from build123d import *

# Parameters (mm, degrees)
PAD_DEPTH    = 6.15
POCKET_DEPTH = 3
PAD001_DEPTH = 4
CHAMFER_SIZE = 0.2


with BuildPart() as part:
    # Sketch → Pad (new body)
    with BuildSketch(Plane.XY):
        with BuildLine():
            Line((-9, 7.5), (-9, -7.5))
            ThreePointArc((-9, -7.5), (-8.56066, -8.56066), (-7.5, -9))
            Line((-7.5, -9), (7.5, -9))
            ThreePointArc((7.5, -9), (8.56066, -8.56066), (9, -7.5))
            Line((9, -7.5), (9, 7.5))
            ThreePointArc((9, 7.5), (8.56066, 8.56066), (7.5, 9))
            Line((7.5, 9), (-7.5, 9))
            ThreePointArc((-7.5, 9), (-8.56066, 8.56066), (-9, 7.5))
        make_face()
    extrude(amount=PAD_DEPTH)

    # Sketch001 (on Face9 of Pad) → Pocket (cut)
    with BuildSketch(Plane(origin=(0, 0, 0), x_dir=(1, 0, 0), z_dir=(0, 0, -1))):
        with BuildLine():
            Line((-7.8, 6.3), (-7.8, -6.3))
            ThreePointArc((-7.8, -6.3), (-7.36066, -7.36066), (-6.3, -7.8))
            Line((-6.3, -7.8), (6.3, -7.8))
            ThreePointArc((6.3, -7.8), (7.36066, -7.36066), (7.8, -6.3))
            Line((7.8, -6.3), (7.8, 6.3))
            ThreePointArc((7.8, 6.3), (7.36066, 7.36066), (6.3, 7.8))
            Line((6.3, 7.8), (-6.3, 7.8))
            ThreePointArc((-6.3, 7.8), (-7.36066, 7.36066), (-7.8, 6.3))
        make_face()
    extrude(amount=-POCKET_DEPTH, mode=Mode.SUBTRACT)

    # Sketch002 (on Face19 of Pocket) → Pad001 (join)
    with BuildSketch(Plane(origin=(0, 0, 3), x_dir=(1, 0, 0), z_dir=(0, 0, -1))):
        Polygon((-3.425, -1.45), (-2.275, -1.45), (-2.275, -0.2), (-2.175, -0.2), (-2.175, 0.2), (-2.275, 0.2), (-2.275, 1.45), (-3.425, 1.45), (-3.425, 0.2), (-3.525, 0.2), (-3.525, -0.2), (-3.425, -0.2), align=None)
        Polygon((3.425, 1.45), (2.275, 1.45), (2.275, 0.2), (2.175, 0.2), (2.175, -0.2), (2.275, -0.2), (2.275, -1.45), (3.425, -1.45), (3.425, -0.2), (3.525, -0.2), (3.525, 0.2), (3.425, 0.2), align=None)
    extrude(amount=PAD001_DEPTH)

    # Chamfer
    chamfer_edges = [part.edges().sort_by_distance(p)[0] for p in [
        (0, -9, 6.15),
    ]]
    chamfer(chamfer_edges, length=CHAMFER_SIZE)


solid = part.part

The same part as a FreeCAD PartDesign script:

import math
import FreeCAD as App
import Part
import Sketcher
from FreeCAD import Vector
Q = App.Units.Quantity


def edges_at(feature, points):
    """Names of the edges that pass closest to the given points."""
    edges = feature.Shape.Edges
    near = lambda p: min(range(len(edges)), key=lambda i: edges[i].distToShape(Part.Vertex(*p))[0])
    return sorted({f"Edge{near(p) + 1}" for p in points})


def add_polygon(sketch, points):
    """Adds a closed chain of lines whose ends are joined by coincident constraints."""
    first, n = sketch.GeometryCount, len(points)
    for a, b in zip(points, points[1:] + points[:1]):
        sketch.addGeometry(Part.LineSegment(App.Vector(*a, 0), App.Vector(*b, 0)), False)
    for i in range(n):
        sketch.addConstraint(Sketcher.Constraint("Coincident", first + i, 2, first + (i + 1) % n, 1))

doc = App.newDocument("Part")
body = doc.addObject("PartDesign::Body", "Body")

sketch1 = body.newObject("Sketcher::SketchObject", "Sketch")
sketch1.AttachmentSupport = (doc.getObject("XY_Plane"), [""])
sketch1.MapMode = "FlatFace"
sketch1.addGeometry([
    Part.LineSegment(Vector(-9, 7.5, 0), Vector(-9, -7.5, 0)),
    Part.ArcOfCircle(Part.Circle(Vector(-7.5, -7.5, 0), Vector(0, 0, 1), 1.5), math.radians(-180), math.radians(-90)),
    Part.LineSegment(Vector(-7.5, -9, 0), Vector(7.5, -9, 0)),
    Part.ArcOfCircle(Part.Circle(Vector(7.5, -7.5, 0), Vector(0, 0, 1), 1.5), math.radians(-90), math.radians(0)),
    Part.LineSegment(Vector(9, -7.5, 0), Vector(9, 7.5, 0)),
    Part.ArcOfCircle(Part.Circle(Vector(7.5, 7.5, 0), Vector(0, 0, 1), 1.5), math.radians(0), math.radians(90)),
    Part.LineSegment(Vector(7.5, 9, 0), Vector(-7.5, 9, 0)),
    Part.ArcOfCircle(Part.Circle(Vector(-7.5, 7.5, 0), Vector(0, 0, 1), 1.5), math.radians(90), math.radians(180)),
], False)
sketch1.addConstraint([
    Sketcher.Constraint("Tangent", 0, 2, 1, 1),
    Sketcher.Constraint("Tangent", 1, 2, 2, 1),
    Sketcher.Constraint("Tangent", 2, 2, 3, 1),
    Sketcher.Constraint("Tangent", 3, 2, 4, 1),
    Sketcher.Constraint("Tangent", 4, 2, 5, 1),
    Sketcher.Constraint("Tangent", 5, 2, 6, 1),
    Sketcher.Constraint("Tangent", 6, 2, 7, 1),
    Sketcher.Constraint("Tangent", 7, 2, 0, 1),
    Sketcher.Constraint("Vertical", 0),
    Sketcher.Constraint("Horizontal", 2),
    Sketcher.Constraint("Vertical", 4),
    Sketcher.Constraint("Horizontal", 6),
    Sketcher.Constraint("Equal", 1, 3),
    Sketcher.Constraint("Equal", 3, 5),
    Sketcher.Constraint("Equal", 5, 7),
    Sketcher.Constraint("Symmetric", 1, 3, 5, 3, -1, 1),
    Sketcher.Constraint("Equal", 6, 0),
    Sketcher.Constraint("Radius", 1, Q("1.500001 mm")),
    Sketcher.Constraint("DistanceX", 2, 1, 2, 2, Q("15 mm")),
])
pad1 = body.newObject("PartDesign::Pad", "Pad")
pad1.Profile = sketch1
pad1.Length = 6.15

sketch2 = body.newObject("Sketcher::SketchObject", "Sketch001")
sketch2.AttachmentSupport = (doc.getObject("XY_Plane"), [""])
sketch2.MapMode = "FlatFace"
sketch2.addGeometry([
    Part.LineSegment(Vector(-7.8, -6.3, 0), Vector(-7.8, 6.3, 0)),
    Part.ArcOfCircle(Part.Circle(Vector(-6.3, 6.3, 0), Vector(0, 0, 1), 1.5), math.radians(90), math.radians(180)),
    Part.LineSegment(Vector(-6.3, 7.8, 0), Vector(6.3, 7.8, 0)),
    Part.ArcOfCircle(Part.Circle(Vector(6.3, 6.3, 0), Vector(0, 0, 1), 1.5), math.radians(0), math.radians(90)),
    Part.LineSegment(Vector(7.8, 6.3, 0), Vector(7.8, -6.3, 0)),
    Part.ArcOfCircle(Part.Circle(Vector(6.3, -6.3, 0), Vector(0, 0, 1), 1.5), math.radians(-90), math.radians(0)),
    Part.LineSegment(Vector(6.3, -7.8, 0), Vector(-6.3, -7.8, 0)),
    Part.ArcOfCircle(Part.Circle(Vector(-6.3, -6.3, 0), Vector(0, 0, 1), 1.5), math.radians(-180), math.radians(-90)),
], False)
sketch2.addConstraint([
    Sketcher.Constraint("Tangent", 0, 2, 1, 2),
    Sketcher.Constraint("Tangent", 1, 1, 2, 1),
    Sketcher.Constraint("Tangent", 2, 2, 3, 2),
    Sketcher.Constraint("Tangent", 3, 1, 4, 1),
    Sketcher.Constraint("Tangent", 4, 2, 5, 2),
    Sketcher.Constraint("Tangent", 5, 1, 6, 1),
    Sketcher.Constraint("Tangent", 6, 2, 7, 2),
    Sketcher.Constraint("Tangent", 7, 1, 0, 1),
    Sketcher.Constraint("Vertical", 0),
    Sketcher.Constraint("Horizontal", 2),
    Sketcher.Constraint("Vertical", 4),
    Sketcher.Constraint("Horizontal", 6),
    Sketcher.Constraint("Equal", 1, 3),
    Sketcher.Constraint("Equal", 3, 5),
    Sketcher.Constraint("Equal", 5, 7),
    Sketcher.Constraint("Symmetric", 1, 3, 5, 3, -1, 1),
    Sketcher.Constraint("Equal", 6, 0),
    Sketcher.Constraint("Radius", 1, Q("1.500001 mm")),
    Sketcher.Constraint("DistanceX", 2, 1, 2, 2, Q("12.6 mm")),
])
pocket1 = body.newObject("PartDesign::Pocket", "Pocket")
pocket1.Profile = sketch2
pocket1.Length = 3
pocket1.Reversed = True

sketch3 = body.newObject("Sketcher::SketchObject", "Sketch002")
sketch3.AttachmentSupport = (doc.getObject("XY_Plane"), [""])
sketch3.MapMode = "FlatFace"
sketch3.AttachmentOffset = App.Placement(Vector(0, 0, 3), App.Rotation())
add_polygon(sketch3, [(-3.42, 1.45), (-2.27, 1.45), (-2.27, 0.2), (-2.17, 0.2), (-2.17, -0.2), (-2.27, -0.2), (-2.27, -1.45), (-3.42, -1.45), (-3.42, -0.2), (-3.52, -0.2), (-3.52, 0.2), (-3.42, 0.2)])
add_polygon(sketch3, [(3.42, -1.45), (2.27, -1.45), (2.27, -0.2), (2.17, -0.2), (2.17, 0.2), (2.27, 0.2), (2.27, 1.45), (3.42, 1.45), (3.42, 0.2), (3.52, 0.2), (3.52, -0.2), (3.42, -0.2)])
sketch3.addConstraint([
    Sketcher.Constraint("Horizontal", 0),
    Sketcher.Constraint("Vertical", 1),
    Sketcher.Constraint("Horizontal", 2),
    Sketcher.Constraint("Vertical", 3),
    Sketcher.Constraint("Horizontal", 4),
    Sketcher.Constraint("Vertical", 5),
    Sketcher.Constraint("Horizontal", 6),
    Sketcher.Constraint("Vertical", 7),
    Sketcher.Constraint("Horizontal", 8),
    Sketcher.Constraint("Vertical", 9),
    Sketcher.Constraint("Horizontal", 10),
    Sketcher.Constraint("Vertical", 11),
    Sketcher.Constraint("Horizontal", 12),
    Sketcher.Constraint("Vertical", 13),
    Sketcher.Constraint("Horizontal", 14),
    Sketcher.Constraint("Vertical", 15),
    Sketcher.Constraint("Horizontal", 16),
    Sketcher.Constraint("Vertical", 17),
    Sketcher.Constraint("Horizontal", 18),
    Sketcher.Constraint("Vertical", 19),
    Sketcher.Constraint("Horizontal", 20),
    Sketcher.Constraint("Vertical", 21),
    Sketcher.Constraint("Horizontal", 22),
    Sketcher.Constraint("Vertical", 23),
    Sketcher.Constraint("Symmetric", 0, 2, 12, 2, -1, 1),
    Sketcher.Constraint("Symmetric", 2, 2, 14, 2, -1, 1),
    Sketcher.Constraint("Symmetric", 4, 2, 16, 2, -1, 1),
    Sketcher.Constraint("Symmetric", 6, 2, 18, 2, -1, 1),
    Sketcher.Constraint("Symmetric", 8, 2, 20, 2, -1, 1),
    Sketcher.Constraint("Symmetric", 10, 2, 22, 2, -1, 1),
    Sketcher.Constraint("Symmetric", 5, 2, 12, 2, -2),
    Sketcher.Constraint("Symmetric", 10, 2, 19, 2, -2),
    Sketcher.Constraint("Horizontal", 4, 2, 7, 2),
    Sketcher.Constraint("Horizontal", 2, 2, 9, 2),
    Sketcher.Constraint("Equal", 4, 8),
    Sketcher.Constraint("DistanceX", 2, 1, 2, 2, Q("0.1 mm")),
    Sketcher.Constraint("DistanceY", 3, 2, 3, 1, Q("0.4 mm")),
    Sketcher.Constraint("DistanceX", 0, 1, 0, 2, Q("1.15 mm")),
    Sketcher.Constraint("DistanceY", 1, 2, 1, 1, Q("1.25 mm")),
    Sketcher.Constraint("DistanceX", 5, 2, 12, 2, Q("4.55 mm")),
])
pad2 = body.newObject("PartDesign::Pad", "Pad001")
pad2.Profile = sketch3
pad2.Length = 4
pad2.Reversed = True
doc.recompute()

chamfer = body.newObject("PartDesign::Chamfer", "Chamfer")
chamfer.Base = (pad2, edges_at(pad2, [(0, -9, 6.15)]))
chamfer.Size = 0.2

doc.recompute()
